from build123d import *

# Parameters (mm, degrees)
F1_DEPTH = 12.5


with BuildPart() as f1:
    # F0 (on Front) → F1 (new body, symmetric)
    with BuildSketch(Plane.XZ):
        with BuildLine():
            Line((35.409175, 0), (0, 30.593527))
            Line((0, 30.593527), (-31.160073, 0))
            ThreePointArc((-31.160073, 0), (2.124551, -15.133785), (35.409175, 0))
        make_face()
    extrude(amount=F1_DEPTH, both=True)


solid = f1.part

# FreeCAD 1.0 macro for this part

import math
import FreeCAD as App
import Part
import Sketcher
Q = App.Units.Quantity

doc = App.newDocument("Part")
params = doc.addObject("Spreadsheet::Sheet", "Params")
for row, (alias, value) in enumerate([
    ("pad1_length", "25 mm"),
], start=1):
    params.set(f"A{row}", alias)
    params.set(f"B{row}", "=" + value)
    params.setAlias(f"B{row}", alias)

body = doc.addObject("PartDesign::Body", "Body")

# Sketch on XZ plane
sketch1 = body.newObject("Sketcher::SketchObject", "Sketch")
sketch1.AttachmentSupport = (doc.getObject("XZ_Plane"), [""])
sketch1.MapMode = "FlatFace"
sketch1.addGeometry([
    Part.LineSegment(App.Vector(35.409175, 0, 0), App.Vector(0, 30.593527, 0)),
    Part.LineSegment(App.Vector(0, 30.593527, 0), App.Vector(-31.160073, 0, 0)),
    Part.ArcOfCircle(Part.Circle(App.Vector(2.124551, 29.035524, 0), App.Vector(0, 0, 1), 44.169309), math.radians(-138.900493), math.radians(-41.099507)),
], False)
sketch1.addConstraint([
    Sketcher.Constraint("Coincident", 0, 2, 1, 1),
    Sketcher.Constraint("Coincident", 1, 2, 2, 1),
    Sketcher.Constraint("Coincident", 2, 2, 0, 1),
    Sketcher.Constraint("PointOnObject", 0, 2, -2),
    Sketcher.Constraint("PointOnObject", 1, 2, -1),
    Sketcher.Constraint("PointOnObject", 2, 2, -1),
    Sketcher.Constraint("Radius", 2, Q("44.169309 mm")),
    Sketcher.Constraint("DistanceX", -1, 1, 2, 3, Q("2.124551 mm")),
    Sketcher.Constraint("DistanceX", 1, 2, 2, 2, Q("66.569248 mm")),
    Sketcher.Constraint("Distance", 0, Q("46.795016 mm")),
])
pad1 = body.newObject("PartDesign::Pad", "Pad")
pad1.Profile = sketch1
pad1.setExpression("Length", "Params.pad1_length")
pad1.Midplane = True

doc.recompute()
